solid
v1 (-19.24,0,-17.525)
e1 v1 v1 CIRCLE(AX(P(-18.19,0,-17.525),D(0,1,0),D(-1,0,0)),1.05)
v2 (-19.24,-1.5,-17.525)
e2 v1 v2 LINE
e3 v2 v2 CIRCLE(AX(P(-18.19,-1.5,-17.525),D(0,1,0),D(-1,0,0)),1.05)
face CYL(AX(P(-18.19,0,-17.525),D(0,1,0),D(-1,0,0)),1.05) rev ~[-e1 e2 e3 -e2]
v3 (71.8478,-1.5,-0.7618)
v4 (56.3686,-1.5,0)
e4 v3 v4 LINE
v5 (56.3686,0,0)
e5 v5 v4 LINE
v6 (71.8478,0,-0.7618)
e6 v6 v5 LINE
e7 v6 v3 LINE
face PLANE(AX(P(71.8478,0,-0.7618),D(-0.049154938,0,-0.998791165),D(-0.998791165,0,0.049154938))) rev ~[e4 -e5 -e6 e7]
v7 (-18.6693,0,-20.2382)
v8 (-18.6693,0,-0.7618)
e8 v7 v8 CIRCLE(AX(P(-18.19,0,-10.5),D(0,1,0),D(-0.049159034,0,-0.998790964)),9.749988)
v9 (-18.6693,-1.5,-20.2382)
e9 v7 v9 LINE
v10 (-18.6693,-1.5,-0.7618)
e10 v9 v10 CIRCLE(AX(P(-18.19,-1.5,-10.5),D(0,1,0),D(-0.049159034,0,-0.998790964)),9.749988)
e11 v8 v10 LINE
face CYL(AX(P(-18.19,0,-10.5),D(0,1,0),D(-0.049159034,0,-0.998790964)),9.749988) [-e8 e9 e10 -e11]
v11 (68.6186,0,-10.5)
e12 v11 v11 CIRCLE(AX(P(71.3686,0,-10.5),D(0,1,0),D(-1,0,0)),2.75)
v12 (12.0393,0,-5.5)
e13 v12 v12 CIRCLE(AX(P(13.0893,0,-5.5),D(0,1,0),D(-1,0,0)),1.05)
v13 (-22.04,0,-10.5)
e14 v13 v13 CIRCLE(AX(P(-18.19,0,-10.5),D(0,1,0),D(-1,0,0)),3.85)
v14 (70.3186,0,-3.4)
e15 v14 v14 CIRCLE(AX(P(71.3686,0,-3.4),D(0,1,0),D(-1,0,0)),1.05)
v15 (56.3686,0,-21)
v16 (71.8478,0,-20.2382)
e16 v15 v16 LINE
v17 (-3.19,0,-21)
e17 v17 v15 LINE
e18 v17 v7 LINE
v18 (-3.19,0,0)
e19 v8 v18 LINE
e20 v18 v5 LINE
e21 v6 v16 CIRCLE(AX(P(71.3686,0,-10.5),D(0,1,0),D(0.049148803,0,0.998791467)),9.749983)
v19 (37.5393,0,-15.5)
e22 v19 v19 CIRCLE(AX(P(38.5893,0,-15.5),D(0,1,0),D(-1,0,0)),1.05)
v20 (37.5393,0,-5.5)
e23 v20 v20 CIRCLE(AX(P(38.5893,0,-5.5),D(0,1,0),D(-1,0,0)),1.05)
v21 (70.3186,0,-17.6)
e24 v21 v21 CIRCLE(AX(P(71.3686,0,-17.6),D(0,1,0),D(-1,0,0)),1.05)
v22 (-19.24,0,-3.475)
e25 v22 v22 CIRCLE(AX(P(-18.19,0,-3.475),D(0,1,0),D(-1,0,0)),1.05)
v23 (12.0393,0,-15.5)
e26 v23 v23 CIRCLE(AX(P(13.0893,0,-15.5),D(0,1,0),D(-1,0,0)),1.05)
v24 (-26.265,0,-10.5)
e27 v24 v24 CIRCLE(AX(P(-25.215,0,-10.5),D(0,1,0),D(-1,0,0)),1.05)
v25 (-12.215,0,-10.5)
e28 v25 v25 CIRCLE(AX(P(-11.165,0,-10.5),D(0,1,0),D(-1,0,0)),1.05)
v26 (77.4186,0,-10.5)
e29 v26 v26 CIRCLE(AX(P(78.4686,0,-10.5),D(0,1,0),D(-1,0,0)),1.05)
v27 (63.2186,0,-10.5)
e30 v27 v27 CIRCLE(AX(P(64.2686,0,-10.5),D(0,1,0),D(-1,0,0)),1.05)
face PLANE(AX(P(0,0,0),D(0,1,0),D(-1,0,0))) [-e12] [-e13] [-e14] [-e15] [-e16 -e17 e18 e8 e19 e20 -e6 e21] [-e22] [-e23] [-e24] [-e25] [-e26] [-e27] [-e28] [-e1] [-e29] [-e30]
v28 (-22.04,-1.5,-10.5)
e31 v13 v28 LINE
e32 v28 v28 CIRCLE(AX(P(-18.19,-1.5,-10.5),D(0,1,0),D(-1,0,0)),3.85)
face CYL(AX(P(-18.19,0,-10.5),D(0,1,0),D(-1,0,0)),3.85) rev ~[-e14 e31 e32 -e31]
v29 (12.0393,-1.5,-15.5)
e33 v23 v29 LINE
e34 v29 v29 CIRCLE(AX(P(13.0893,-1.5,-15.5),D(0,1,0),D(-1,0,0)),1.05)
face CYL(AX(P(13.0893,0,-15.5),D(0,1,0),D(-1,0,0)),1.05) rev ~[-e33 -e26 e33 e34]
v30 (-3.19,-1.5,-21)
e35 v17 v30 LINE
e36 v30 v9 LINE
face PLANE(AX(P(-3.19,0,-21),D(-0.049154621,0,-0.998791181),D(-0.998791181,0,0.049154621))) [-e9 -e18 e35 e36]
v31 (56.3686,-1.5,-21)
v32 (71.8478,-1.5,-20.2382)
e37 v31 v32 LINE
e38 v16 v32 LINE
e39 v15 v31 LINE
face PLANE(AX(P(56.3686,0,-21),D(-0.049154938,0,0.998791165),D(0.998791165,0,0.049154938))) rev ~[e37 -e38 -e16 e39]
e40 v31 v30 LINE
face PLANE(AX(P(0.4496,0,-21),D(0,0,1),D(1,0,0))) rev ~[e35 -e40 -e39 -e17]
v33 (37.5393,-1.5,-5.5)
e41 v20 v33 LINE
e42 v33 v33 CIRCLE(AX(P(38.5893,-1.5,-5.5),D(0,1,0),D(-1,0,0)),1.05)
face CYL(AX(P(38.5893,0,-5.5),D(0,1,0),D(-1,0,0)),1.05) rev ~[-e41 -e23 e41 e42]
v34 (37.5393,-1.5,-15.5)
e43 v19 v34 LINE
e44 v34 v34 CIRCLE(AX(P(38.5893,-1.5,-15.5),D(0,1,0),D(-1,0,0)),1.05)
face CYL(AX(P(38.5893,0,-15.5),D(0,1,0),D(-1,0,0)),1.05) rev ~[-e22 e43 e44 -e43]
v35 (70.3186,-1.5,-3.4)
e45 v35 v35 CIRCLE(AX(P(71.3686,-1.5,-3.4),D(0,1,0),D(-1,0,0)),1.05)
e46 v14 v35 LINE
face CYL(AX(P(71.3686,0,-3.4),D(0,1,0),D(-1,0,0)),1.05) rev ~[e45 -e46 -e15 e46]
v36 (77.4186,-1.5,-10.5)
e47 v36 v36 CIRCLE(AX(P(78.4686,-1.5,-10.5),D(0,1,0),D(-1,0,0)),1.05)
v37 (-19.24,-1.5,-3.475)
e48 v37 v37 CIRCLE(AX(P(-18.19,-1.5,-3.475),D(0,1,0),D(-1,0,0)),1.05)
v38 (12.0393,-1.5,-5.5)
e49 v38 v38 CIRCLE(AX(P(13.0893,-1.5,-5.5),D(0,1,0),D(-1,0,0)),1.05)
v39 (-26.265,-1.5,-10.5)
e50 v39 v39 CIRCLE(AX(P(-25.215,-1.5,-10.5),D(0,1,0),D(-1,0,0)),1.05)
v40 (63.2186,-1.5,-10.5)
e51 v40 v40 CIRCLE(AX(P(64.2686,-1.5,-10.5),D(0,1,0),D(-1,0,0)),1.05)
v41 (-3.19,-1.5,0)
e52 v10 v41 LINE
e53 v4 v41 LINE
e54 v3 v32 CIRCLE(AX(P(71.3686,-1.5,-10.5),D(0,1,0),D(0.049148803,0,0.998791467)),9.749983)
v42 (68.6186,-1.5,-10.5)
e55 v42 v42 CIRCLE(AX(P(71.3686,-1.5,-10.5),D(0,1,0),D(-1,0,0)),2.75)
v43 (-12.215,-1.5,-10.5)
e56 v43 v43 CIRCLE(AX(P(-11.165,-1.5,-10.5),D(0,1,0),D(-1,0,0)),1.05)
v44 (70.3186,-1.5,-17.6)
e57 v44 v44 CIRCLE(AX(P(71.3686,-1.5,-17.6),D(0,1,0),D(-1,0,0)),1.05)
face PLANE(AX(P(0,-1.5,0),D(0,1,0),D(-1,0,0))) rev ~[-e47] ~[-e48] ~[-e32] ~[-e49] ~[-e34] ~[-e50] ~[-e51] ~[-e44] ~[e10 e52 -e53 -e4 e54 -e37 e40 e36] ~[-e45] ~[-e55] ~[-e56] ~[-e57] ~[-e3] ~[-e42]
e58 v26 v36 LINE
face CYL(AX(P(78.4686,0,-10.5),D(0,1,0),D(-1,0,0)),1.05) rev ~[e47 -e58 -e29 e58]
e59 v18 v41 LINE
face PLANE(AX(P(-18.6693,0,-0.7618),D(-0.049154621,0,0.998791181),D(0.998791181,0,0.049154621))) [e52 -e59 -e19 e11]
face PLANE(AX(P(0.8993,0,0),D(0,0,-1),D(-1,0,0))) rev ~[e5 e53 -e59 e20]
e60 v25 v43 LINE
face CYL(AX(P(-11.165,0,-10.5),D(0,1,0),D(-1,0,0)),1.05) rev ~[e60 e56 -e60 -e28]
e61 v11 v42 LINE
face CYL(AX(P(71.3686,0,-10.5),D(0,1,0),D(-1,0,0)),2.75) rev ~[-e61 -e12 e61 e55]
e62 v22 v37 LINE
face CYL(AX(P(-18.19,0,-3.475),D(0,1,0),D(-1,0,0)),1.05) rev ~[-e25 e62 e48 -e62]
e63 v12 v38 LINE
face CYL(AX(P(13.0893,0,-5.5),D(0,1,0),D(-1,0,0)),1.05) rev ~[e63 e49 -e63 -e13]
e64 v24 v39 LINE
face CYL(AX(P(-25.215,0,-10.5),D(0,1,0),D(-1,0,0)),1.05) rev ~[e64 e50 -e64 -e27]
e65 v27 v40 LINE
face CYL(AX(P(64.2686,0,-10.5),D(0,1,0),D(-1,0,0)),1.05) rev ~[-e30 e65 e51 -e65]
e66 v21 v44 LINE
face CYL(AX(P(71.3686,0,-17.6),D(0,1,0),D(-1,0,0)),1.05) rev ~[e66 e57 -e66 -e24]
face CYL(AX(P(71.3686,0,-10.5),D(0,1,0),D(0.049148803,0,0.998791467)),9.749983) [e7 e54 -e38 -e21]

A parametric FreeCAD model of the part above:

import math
import FreeCAD as App
import Part
import Sketcher

V = App.Vector

doc = App.newDocument("Part")
body = doc.addObject("PartDesign::Body", "Body")

# Sketch on XZ plane
sketch1 = doc.addObject("Sketcher::SketchObject", "Sketch")
body.addObject(sketch1)
sketch1.AttachmentSupport = (doc.XZ_Plane, [""])
sketch1.MapMode = "FlatFace"
sketch1.addGeometry([
    Part.LineSegment(V(-3.2, -21, 0), V(-18.7, -20.2, 0)),  # 0
    Part.ArcOfCircle(Part.Circle(V(-18.2, -10.5, 0), V(0, 0, 1), 9.7), math.radians(93), math.radians(267)),  # 1
    Part.LineSegment(V(-18.7, -0.8, 0), V(-3.2, 0, 0)),  # 2
    Part.LineSegment(V(-3.2, 0, 0), V(56.4, 0, 0)),  # 3
    Part.LineSegment(V(56.4, 0, 0), V(71.8, -0.8, 0)),  # 4
    Part.ArcOfCircle(Part.Circle(V(71.4, -10.5, 0), V(0, 0, 1), 9.7), math.radians(-87), math.radians(87)),  # 5
    Part.LineSegment(V(71.8, -20.2, 0), V(56.4, -21, 0)),  # 6
    Part.LineSegment(V(56.4, -21, 0), V(-3.2, -21, 0)),  # 7
    Part.Circle(V(13.1, -5.5, 0), V(0, 0, 1), 1.1),  # 8
    Part.Circle(V(38.6, -15.5, 0), V(0, 0, 1), 1.1),  # 9
    Part.Circle(V(13.1, -15.5, 0), V(0, 0, 1), 1.1),  # 10
    Part.Circle(V(38.6, -5.5, 0), V(0, 0, 1), 1.1),  # 11
    Part.Circle(V(-18.2, -3.5, 0), V(0, 0, 1), 1.1),  # 12
    Part.Circle(V(-18.2, -17.5, 0), V(0, 0, 1), 1.1),  # 13
    Part.Circle(V(-11.2, -10.5, 0), V(0, 0, 1), 1.1),  # 14
    Part.Circle(V(-18.2, -10.5, 0), V(0, 0, 1), 3.9),  # 15
    Part.Circle(V(-25.2, -10.5, 0), V(0, 0, 1), 1.1),  # 16
    Part.Circle(V(71.4, -3.4, 0), V(0, 0, 1), 1.1),  # 17
    Part.Circle(V(71.4, -17.6, 0), V(0, 0, 1), 1.1),  # 18
    Part.Circle(V(78.5, -10.5, 0), V(0, 0, 1), 1.1),  # 19
    Part.Circle(V(71.4, -10.5, 0), V(0, 0, 1), 2.8),  # 20
    Part.Circle(V(64.3, -10.5, 0), V(0, 0, 1), 1.1),  # 21
], False)
sketch1.addConstraint([
    Sketcher.Constraint("Tangent", 0, 2, 1, 2),
    Sketcher.Constraint("Tangent", 1, 1, 2, 1),
    Sketcher.Constraint("Coincident", 2, 2, 3, 1),
    Sketcher.Constraint("Coincident", 3, 2, 4, 1),
    Sketcher.Constraint("Tangent", 4, 2, 5, 2),
    Sketcher.Constraint("Tangent", 5, 1, 6, 1),
    Sketcher.Constraint("Coincident", 6, 2, 7, 1),
    Sketcher.Constraint("Coincident", 7, 2, 0, 1),
    Sketcher.Constraint("Horizontal", 3),
    Sketcher.Constraint("Horizontal", 7),
    Sketcher.Constraint("Coincident", 15, 3, 1, 3),
    Sketcher.Constraint("Coincident", 20, 3, 5, 3),
    Sketcher.Constraint("Equal", 1, 5),
    Sketcher.Constraint("Equal", 8, 9),
    Sketcher.Constraint("Equal", 9, 10),
    Sketcher.Constraint("Equal", 10, 11),
    Sketcher.Constraint("Equal", 11, 12),
    Sketcher.Constraint("Equal", 12, 13),
    Sketcher.Constraint("Equal", 13, 14),
    Sketcher.Constraint("Equal", 14, 16),
    Sketcher.Constraint("Equal", 16, 17),
    Sketcher.Constraint("Equal", 17, 18),
    Sketcher.Constraint("Equal", 18, 19),
    Sketcher.Constraint("Equal", 19, 21),
    Sketcher.Constraint("PointOnObject", 2, 2, -1),
    Sketcher.Constraint("Parallel", 0, 4),
    Sketcher.Constraint("Parallel", 2, 6),
    Sketcher.Constraint("Horizontal", 1, 3, 5, 3),
    Sketcher.Constraint("Horizontal", 9, 3, 10, 3),
    Sketcher.Constraint("Horizontal", 8, 3, 11, 3),
    Sketcher.Constraint("Horizontal", 5, 3, 14, 3),
    Sketcher.Constraint("Horizontal", 15, 3, 16, 3),
    Sketcher.Constraint("Horizontal", 16, 3, 19, 3),
    Sketcher.Constraint("Horizontal", 20, 3, 21, 3),
    Sketcher.Constraint("Vertical", 8, 3, 10, 3),
    Sketcher.Constraint("Vertical", 9, 3, 11, 3),
    Sketcher.Constraint("Vertical", 1, 3, 12, 3),
    Sketcher.Constraint("Vertical", 12, 3, 13, 3),
    Sketcher.Constraint("Vertical", 5, 3, 17, 3),
    Sketcher.Constraint("Vertical", 17, 3, 18, 3),
    Sketcher.Constraint("Vertical", 0, 2, 1, 1),
    Sketcher.Constraint("Vertical", 3, 2, 6, 2),
    Sketcher.Constraint("Diameter", 8, 2.1),
    Sketcher.Constraint("Diameter", 15, 7.7),
    Sketcher.Constraint("Diameter", 20, 5.5),
    Sketcher.Constraint("Radius", 1, 9.75),
    Sketcher.Constraint("DistanceY", 6, 2, -1, 1, 21.0),
    Sketcher.Constraint("DistanceY", 1, 3, 8, 3, 5.0),
    Sketcher.Constraint("DistanceY", 9, 3, 8, 3, 10.0),
    Sketcher.Constraint("DistanceX", 12, 3, 2, 2, 15.0),
    Sketcher.Constraint("DistanceY", 17, 3, -1, 1, 3.4),
    Sketcher.Constraint("DistanceY", 18, 3, -1, 1, 17.6),
    Sketcher.Constraint("DistanceX", 8, 3, 9, 3, 25.5),
    Sketcher.Constraint("DistanceX", 5, 3, 19, 3, 7.1),
    Sketcher.Constraint("DistanceX", 21, 3, 5, 3, 7.1),
    Sketcher.Constraint("DistanceX", 1, 3, -1, 1, 18.19),
    Sketcher.Constraint("DistanceY", 13, 3, 12, 3, 14.05),
    Sketcher.Constraint("DistanceX", 16, 3, 14, 3, 14.05),
    Sketcher.Constraint("DistanceX", 3, 1, 3, 2, 59.5586),
    Sketcher.Constraint("DistanceY", 12, 3, -1, 1, 3.475),
    Sketcher.Constraint("DistanceX", 14, 3, -1, 1, 11.165),
    Sketcher.Constraint("DistanceX", -1, 1, 8, 3, 13.0893),
])
pad1 = doc.addObject("PartDesign::Pad", "Pad")
body.addObject(pad1)
pad1.Profile = sketch1
pad1.Length = 1.5

doc.recompute()
